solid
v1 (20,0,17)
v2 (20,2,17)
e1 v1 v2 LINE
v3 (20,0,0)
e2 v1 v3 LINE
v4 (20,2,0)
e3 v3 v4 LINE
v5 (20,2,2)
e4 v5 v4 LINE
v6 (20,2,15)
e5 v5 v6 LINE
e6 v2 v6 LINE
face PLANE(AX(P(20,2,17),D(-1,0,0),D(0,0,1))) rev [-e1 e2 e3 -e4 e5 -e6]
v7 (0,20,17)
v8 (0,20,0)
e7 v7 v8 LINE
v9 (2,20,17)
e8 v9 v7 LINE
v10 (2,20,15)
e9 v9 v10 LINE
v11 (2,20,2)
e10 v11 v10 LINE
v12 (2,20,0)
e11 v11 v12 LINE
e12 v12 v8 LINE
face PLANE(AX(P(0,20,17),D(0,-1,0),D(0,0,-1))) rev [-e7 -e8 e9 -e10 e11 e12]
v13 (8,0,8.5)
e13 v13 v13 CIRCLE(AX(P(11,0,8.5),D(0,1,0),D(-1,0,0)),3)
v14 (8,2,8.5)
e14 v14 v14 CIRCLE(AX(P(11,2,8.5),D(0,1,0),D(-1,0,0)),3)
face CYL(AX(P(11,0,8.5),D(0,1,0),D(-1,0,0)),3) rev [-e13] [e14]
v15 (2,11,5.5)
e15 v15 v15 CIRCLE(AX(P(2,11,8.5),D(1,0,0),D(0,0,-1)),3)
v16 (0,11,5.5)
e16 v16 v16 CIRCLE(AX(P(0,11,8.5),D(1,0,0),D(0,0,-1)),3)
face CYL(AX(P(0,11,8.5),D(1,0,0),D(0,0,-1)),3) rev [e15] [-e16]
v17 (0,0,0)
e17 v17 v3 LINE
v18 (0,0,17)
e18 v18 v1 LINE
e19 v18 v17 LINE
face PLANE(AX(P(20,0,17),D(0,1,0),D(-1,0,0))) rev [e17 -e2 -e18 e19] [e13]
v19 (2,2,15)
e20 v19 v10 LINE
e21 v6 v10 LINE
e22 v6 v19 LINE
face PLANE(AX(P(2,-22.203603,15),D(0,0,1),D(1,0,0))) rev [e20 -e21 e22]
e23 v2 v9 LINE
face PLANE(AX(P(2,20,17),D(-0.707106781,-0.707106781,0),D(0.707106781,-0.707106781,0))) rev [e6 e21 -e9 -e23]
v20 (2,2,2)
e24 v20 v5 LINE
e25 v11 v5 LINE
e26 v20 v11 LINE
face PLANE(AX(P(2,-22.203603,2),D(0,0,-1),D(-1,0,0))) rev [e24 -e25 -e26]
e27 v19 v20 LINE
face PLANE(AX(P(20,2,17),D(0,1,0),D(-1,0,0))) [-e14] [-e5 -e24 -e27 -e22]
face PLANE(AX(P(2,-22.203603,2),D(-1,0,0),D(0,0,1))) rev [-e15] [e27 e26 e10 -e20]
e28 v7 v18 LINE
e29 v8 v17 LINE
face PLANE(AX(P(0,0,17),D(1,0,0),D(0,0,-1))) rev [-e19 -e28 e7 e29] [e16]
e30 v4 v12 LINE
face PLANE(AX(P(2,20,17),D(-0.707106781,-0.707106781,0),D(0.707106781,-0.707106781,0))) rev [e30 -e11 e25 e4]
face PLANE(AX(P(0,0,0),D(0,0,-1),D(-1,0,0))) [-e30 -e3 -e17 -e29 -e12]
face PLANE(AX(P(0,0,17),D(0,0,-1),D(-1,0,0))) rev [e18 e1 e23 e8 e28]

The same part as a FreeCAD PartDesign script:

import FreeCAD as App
import Part
import Sketcher

V = App.Vector

doc = App.newDocument("Part")
body = doc.addObject("PartDesign::Body", "Body")

sketch1 = body.newObject("Sketcher::SketchObject", "Sketch")
sketch1.AttachmentSupport = (doc.getObject("XY_Plane"), [""])
sketch1.MapMode = "FlatFace"
sketch1.addGeometry(Part.LineSegment(V(0, 20, 0), V(0, 0, 0)), False)
sketch1.addGeometry(Part.LineSegment(V(0, 0, 0), V(20, 0, 0)), False)
sketch1.addGeometry(Part.LineSegment(V(20, 0, 0), V(20, 2, 0)), False)
sketch1.addGeometry(Part.LineSegment(V(20, 2, 0), V(2, 20, 0)), False)
sketch1.addGeometry(Part.LineSegment(V(2, 20, 0), V(0, 20, 0)), False)
sketch1.addConstraint(Sketcher.Constraint("Coincident", 0, 2, 1, 1))
sketch1.addConstraint(Sketcher.Constraint("Coincident", 1, 2, 2, 1))
sketch1.addConstraint(Sketcher.Constraint("Coincident", 2, 2, 3, 1))
sketch1.addConstraint(Sketcher.Constraint("Coincident", 3, 2, 4, 1))
sketch1.addConstraint(Sketcher.Constraint("Coincident", 4, 2, 0, 1))
sketch1.addConstraint(Sketcher.Constraint("Vertical", 0))
sketch1.addConstraint(Sketcher.Constraint("Horizontal", 1))
sketch1.addConstraint(Sketcher.Constraint("Vertical", 2))
sketch1.addConstraint(Sketcher.Constraint("Horizontal", 4))
sketch1.addConstraint(Sketcher.Constraint("Coincident", 0, 2, -1, 1))
sketch1.addConstraint(Sketcher.Constraint("Equal", 1, 0))
sketch1.addConstraint(Sketcher.Constraint("Equal", 4, 2))
sketch1.addConstraint(Sketcher.Constraint("DistanceX", 1, 1, 1, 2, 20.0))
sketch1.addConstraint(Sketcher.Constraint("DistanceX", 4, 2, 4, 1, 2.0))
pad1 = body.newObject("PartDesign::Pad", "Pad")
pad1.Profile = sketch1
pad1.Length = 17

sketch2 = body.newObject("Sketcher::SketchObject", "Sketch001")
sketch2.AttachmentSupport = (doc.getObject("XZ_Plane"), [""])
sketch2.MapMode = "FlatFace"
sketch2.AttachmentOffset = App.Placement(V(0, 0, -20), App.Rotation())
sketch2.addGeometry(Part.LineSegment(V(2, 2, 0), V(2, 15, 0)), False)
sketch2.addGeometry(Part.LineSegment(V(2, 15, 0), V(20, 15, 0)), False)
sketch2.addGeometry(Part.LineSegment(V(20, 15, 0), V(20, 2, 0)), False)
sketch2.addGeometry(Part.LineSegment(V(20, 2, 0), V(2, 2, 0)), False)
sketch2.addConstraint(Sketcher.Constraint("Coincident", 0, 2, 1, 1))
sketch2.addConstraint(Sketcher.Constraint("Coincident", 1, 2, 2, 1))
sketch2.addConstraint(Sketcher.Constraint("Coincident", 2, 2, 3, 1))
sketch2.addConstraint(Sketcher.Constraint("Coincident", 3, 2, 0, 1))
sketch2.addConstraint(Sketcher.Constraint("Vertical", 0))
sketch2.addConstraint(Sketcher.Constraint("Horizontal", 1))
sketch2.addConstraint(Sketcher.Constraint("Vertical", 2))
sketch2.addConstraint(Sketcher.Constraint("Horizontal", 3))
sketch2.addConstraint(Sketcher.Constraint("DistanceX", 1, 1, 1, 2, 18.0))
sketch2.addConstraint(Sketcher.Constraint("DistanceY", 0, 1, 0, 2, 13.0))
sketch2.addConstraint(Sketcher.Constraint("DistanceX", -1, 1, 0, 2, 2.0))
sketch2.addConstraint(Sketcher.Constraint("DistanceY", -1, 1, 0, 2, 15.0))
pocket1 = body.newObject("PartDesign::Pocket", "Pocket")
pocket1.Profile = sketch2
pocket1.Length = 18
pocket1.Reversed = True

sketch3 = body.newObject("Sketcher::SketchObject", "Sketch002")
sketch3.AttachmentSupport = (doc.getObject("YZ_Plane"), [""])
sketch3.MapMode = "FlatFace"
sketch3.AttachmentOffset = App.Placement(V(0, 0, 2), App.Rotation())
sketch3.addGeometry(Part.Circle(V(11, 8.5, 0), V(0, 0, 1), 3), False)
sketch3.addConstraint(Sketcher.Constraint("Diameter", 0, 6.0))
sketch3.addConstraint(Sketcher.Constraint("DistanceX", -1, 1, 0, 3, 11.0))
sketch3.addConstraint(Sketcher.Constraint("DistanceY", -1, 1, 0, 3, 8.5))
pocket2 = body.newObject("PartDesign::Pocket", "Pocket001")
pocket2.Profile = sketch3
pocket2.Length = 2

sketch4 = body.newObject("Sketcher::SketchObject", "Sketch003")
sketch4.AttachmentSupport = (doc.getObject("XZ_Plane"), [""])
sketch4.MapMode = "FlatFace"
sketch4.AttachmentOffset = App.Placement(V(0, 0, -2), App.Rotation())
sketch4.addGeometry(Part.Circle(V(11, 8.5, 0), V(0, 0, 1), 3), False)
sketch4.addConstraint(Sketcher.Constraint("Diameter", 0, 6.0))
sketch4.addConstraint(Sketcher.Constraint("DistanceX", -1, 1, 0, 3, 11.0))
sketch4.addConstraint(Sketcher.Constraint("DistanceY", -1, 1, 0, 3, 8.5))
pocket3 = body.newObject("PartDesign::Pocket", "Pocket002")
pocket3.Profile = sketch4
pocket3.Type = "ThroughAll"
pocket3.Reversed = True

doc.recompute()
